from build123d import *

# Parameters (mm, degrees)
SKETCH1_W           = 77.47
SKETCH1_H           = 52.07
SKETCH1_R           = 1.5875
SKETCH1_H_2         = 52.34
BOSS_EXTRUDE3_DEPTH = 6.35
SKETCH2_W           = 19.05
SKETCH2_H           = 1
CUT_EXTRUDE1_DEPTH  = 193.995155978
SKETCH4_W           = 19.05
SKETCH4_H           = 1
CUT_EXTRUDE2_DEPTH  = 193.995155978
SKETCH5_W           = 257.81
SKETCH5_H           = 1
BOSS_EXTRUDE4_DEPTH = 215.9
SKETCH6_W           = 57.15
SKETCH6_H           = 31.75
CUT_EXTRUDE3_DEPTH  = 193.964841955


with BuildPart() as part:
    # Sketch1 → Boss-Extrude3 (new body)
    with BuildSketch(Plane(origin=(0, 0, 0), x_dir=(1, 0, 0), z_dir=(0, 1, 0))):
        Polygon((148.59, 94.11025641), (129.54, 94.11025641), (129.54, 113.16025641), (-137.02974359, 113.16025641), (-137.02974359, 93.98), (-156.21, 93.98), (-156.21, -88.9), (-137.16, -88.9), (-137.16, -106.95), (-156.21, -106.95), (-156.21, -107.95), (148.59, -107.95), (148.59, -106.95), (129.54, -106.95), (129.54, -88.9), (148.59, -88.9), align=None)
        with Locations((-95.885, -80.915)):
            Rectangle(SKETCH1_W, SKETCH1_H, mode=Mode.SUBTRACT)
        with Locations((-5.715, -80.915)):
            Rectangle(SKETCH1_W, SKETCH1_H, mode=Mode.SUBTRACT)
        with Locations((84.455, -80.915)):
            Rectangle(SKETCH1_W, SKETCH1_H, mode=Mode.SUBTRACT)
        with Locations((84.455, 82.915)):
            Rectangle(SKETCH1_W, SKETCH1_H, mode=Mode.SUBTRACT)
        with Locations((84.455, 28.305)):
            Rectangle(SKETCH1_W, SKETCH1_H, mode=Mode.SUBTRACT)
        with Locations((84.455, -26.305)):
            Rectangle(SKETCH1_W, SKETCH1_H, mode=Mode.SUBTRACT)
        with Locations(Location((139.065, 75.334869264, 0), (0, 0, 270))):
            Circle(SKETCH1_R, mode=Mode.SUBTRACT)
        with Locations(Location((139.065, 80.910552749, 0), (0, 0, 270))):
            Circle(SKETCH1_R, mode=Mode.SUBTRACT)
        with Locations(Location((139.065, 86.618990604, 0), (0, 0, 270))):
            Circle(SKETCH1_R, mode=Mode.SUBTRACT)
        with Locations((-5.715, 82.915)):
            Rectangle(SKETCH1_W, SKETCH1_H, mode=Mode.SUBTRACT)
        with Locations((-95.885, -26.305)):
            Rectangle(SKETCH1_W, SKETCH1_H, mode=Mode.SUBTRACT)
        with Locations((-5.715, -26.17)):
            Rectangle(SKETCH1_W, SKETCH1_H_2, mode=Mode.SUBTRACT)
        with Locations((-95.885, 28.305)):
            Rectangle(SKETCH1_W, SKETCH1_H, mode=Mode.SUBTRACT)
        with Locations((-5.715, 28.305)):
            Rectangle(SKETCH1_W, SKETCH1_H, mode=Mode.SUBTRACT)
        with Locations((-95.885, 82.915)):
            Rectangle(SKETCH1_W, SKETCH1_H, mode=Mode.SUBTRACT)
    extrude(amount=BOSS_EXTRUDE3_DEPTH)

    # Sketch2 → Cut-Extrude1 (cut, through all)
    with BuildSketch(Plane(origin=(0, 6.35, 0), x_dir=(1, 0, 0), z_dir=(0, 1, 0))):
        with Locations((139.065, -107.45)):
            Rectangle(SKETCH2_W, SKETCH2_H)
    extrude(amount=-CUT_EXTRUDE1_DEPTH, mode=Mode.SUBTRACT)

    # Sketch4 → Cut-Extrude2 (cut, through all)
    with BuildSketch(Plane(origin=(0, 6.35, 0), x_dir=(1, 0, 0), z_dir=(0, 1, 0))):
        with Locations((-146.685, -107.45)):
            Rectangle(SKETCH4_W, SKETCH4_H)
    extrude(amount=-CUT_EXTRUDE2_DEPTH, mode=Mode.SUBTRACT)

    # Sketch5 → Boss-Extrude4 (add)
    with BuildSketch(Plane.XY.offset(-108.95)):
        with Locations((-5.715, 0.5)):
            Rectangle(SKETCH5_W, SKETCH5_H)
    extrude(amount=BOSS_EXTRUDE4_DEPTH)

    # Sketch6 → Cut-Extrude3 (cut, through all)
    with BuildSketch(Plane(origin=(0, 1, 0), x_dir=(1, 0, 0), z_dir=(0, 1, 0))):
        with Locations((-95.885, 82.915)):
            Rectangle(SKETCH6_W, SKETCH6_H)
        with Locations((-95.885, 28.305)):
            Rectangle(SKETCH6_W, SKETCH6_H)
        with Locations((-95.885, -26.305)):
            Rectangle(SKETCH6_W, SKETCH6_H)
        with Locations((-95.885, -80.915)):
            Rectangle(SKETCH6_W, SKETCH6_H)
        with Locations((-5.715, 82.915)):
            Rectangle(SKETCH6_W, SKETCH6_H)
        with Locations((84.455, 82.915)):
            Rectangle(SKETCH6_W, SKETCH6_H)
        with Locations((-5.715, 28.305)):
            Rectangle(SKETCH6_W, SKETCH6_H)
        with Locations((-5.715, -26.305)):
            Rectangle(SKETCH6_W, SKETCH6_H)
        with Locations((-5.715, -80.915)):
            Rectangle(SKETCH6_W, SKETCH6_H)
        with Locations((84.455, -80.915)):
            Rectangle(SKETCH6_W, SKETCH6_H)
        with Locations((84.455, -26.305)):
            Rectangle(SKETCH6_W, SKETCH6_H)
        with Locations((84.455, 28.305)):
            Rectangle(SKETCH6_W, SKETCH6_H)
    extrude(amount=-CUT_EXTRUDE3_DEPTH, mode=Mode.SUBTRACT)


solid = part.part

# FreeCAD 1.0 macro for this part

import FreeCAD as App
import Part
import Sketcher
from FreeCAD import Vector
Q = App.Units.Quantity

doc = App.newDocument("Part")
body = doc.addObject("PartDesign::Body", "Body")

# Sketch on XZ plane
sketch1 = body.newObject("Sketcher::SketchObject", "Sketch")
sketch1.AttachmentSupport = (doc.getObject("XZ_Plane"), [""])
sketch1.MapMode = "FlatFace"
sketch1.addGeometry([
    Part.LineSegment(Vector(148.6, -94.1, 0), Vector(129.5, -94.1, 0)),  # 0
    Part.LineSegment(Vector(129.5, -94.1, 0), Vector(129.5, -113.2, 0)),  # 1
    Part.LineSegment(Vector(129.5, -113.2, 0), Vector(-137, -113.2, 0)),  # 2
    Part.LineSegment(Vector(-137, -113.2, 0), Vector(-137, -94, 0)),  # 3
    Part.LineSegment(Vector(-137, -94, 0), Vector(-156.2, -94, 0)),  # 4
    Part.LineSegment(Vector(-156.2, -94, 0), Vector(-156.2, 88.9, 0)),  # 5
    Part.LineSegment(Vector(-156.2, 88.9, 0), Vector(-137.2, 88.9, 0)),  # 6
    Part.LineSegment(Vector(-137.2, 88.9, 0), Vector(-137.2, 107, 0)),  # 7
    Part.LineSegment(Vector(-137.2, 107, 0), Vector(-156.2, 107, 0)),  # 8
    Part.LineSegment(Vector(-156.2, 107, 0), Vector(-156.2, 108, 0)),  # 9
    Part.LineSegment(Vector(-156.2, 108, 0), Vector(148.6, 108, 0)),  # 10
    Part.LineSegment(Vector(148.6, 108, 0), Vector(148.6, 107, 0)),  # 11
    Part.LineSegment(Vector(148.6, 107, 0), Vector(129.5, 107, 0)),  # 12
    Part.LineSegment(Vector(129.5, 107, 0), Vector(129.5, 88.9, 0)),  # 13
    Part.LineSegment(Vector(129.5, 88.9, 0), Vector(148.6, 88.9, 0)),  # 14
    Part.LineSegment(Vector(148.6, 88.9, 0), Vector(148.6, -94.1, 0)),  # 15
    Part.LineSegment(Vector(-57.1, 107, 0), Vector(-134.6, 107, 0)),  # 16
    Part.LineSegment(Vector(-134.6, 107, 0), Vector(-134.6, 54.9, 0)),  # 17
    Part.LineSegment(Vector(-134.6, 54.9, 0), Vector(-57.1, 54.9, 0)),  # 18
    Part.LineSegment(Vector(-57.1, 54.9, 0), Vector(-57.1, 107, 0)),  # 19
    Part.LineSegment(Vector(33, 107, 0), Vector(-44.5, 107, 0)),  # 20
    Part.LineSegment(Vector(-44.5, 107, 0), Vector(-44.5, 54.9, 0)),  # 21
    Part.LineSegment(Vector(-44.5, 54.9, 0), Vector(33, 54.9, 0)),  # 22
    Part.LineSegment(Vector(33, 54.9, 0), Vector(33, 107, 0)),  # 23
    Part.LineSegment(Vector(-57.1, 52.3, 0), Vector(-134.6, 52.3, 0)),  # 24
    Part.LineSegment(Vector(-134.6, 52.3, 0), Vector(-134.6, 0.3, 0)),  # 25
    Part.LineSegment(Vector(-134.6, 0.3, 0), Vector(-57.1, 0.3, 0)),  # 26
    Part.LineSegment(Vector(-57.1, 0.3, 0), Vector(-57.1, 52.3, 0)),  # 27
    Part.LineSegment(Vector(33, 52.3, 0), Vector(-44.5, 52.3, 0)),  # 28
    Part.LineSegment(Vector(-44.5, 52.3, 0), Vector(-44.5, 0, 0)),  # 29
    Part.LineSegment(Vector(-44.5, 0, 0), Vector(33, 0, 0)),  # 30
    Part.LineSegment(Vector(33, 0, 0), Vector(33, 52.3, 0)),  # 31
    Part.LineSegment(Vector(123.2, 107, 0), Vector(45.7, 107, 0)),  # 32
    Part.LineSegment(Vector(45.7, 107, 0), Vector(45.7, 54.9, 0)),  # 33
    Part.LineSegment(Vector(45.7, 54.9, 0), Vector(123.2, 54.9, 0)),  # 34
    Part.LineSegment(Vector(123.2, 54.9, 0), Vector(123.2, 107, 0)),  # 35
    Part.LineSegment(Vector(123.2, 52.3, 0), Vector(45.7, 52.3, 0)),  # 36
    Part.LineSegment(Vector(45.7, 52.3, 0), Vector(45.7, 0.3, 0)),  # 37
    Part.LineSegment(Vector(45.7, 0.3, 0), Vector(123.2, 0.3, 0)),  # 38
    Part.LineSegment(Vector(123.2, 0.3, 0), Vector(123.2, 52.3, 0)),  # 39
    Part.LineSegment(Vector(-57.1, -2.3, 0), Vector(-134.6, -2.3, 0)),  # 40
    Part.LineSegment(Vector(-134.6, -2.3, 0), Vector(-134.6, -54.3, 0)),  # 41
    Part.LineSegment(Vector(-134.6, -54.3, 0), Vector(-57.1, -54.3, 0)),  # 42
    Part.LineSegment(Vector(-57.1, -54.3, 0), Vector(-57.1, -2.3, 0)),  # 43
    Part.LineSegment(Vector(33, -2.3, 0), Vector(-44.5, -2.3, 0)),  # 44
    Part.LineSegment(Vector(-44.5, -2.3, 0), Vector(-44.5, -54.3, 0)),  # 45
    Part.LineSegment(Vector(-44.5, -54.3, 0), Vector(33, -54.3, 0)),  # 46
    Part.LineSegment(Vector(33, -54.3, 0), Vector(33, -2.3, 0)),  # 47
    Part.LineSegment(Vector(-57.1, -56.9, 0), Vector(-134.6, -56.9, 0)),  # 48
    Part.LineSegment(Vector(-134.6, -56.9, 0), Vector(-134.6, -109, 0)),  # 49
    Part.LineSegment(Vector(-134.6, -109, 0), Vector(-57.1, -109, 0)),  # 50
    Part.LineSegment(Vector(-57.1, -109, 0), Vector(-57.1, -56.9, 0)),  # 51
    Part.LineSegment(Vector(33, -56.9, 0), Vector(-44.5, -56.9, 0)),  # 52
    Part.LineSegment(Vector(-44.5, -56.9, 0), Vector(-44.5, -109, 0)),  # 53
    Part.LineSegment(Vector(-44.5, -109, 0), Vector(33, -109, 0)),  # 54
    Part.LineSegment(Vector(33, -109, 0), Vector(33, -56.9, 0)),  # 55
    Part.LineSegment(Vector(123.2, -2.3, 0), Vector(45.7, -2.3, 0)),  # 56
    Part.LineSegment(Vector(45.7, -2.3, 0), Vector(45.7, -54.3, 0)),  # 57
    Part.LineSegment(Vector(45.7, -54.3, 0), Vector(123.2, -54.3, 0)),  # 58
    Part.LineSegment(Vector(123.2, -54.3, 0), Vector(123.2, -2.3, 0)),  # 59
    Part.Circle(Vector(139.1, -75.3, 0), Vector(0, 0, 1), 1.6),  # 60
    Part.Circle(Vector(139.1, -80.9, 0), Vector(0, 0, 1), 1.6),  # 61
    Part.LineSegment(Vector(123.2, -56.9, 0), Vector(45.7, -56.9, 0)),  # 62
    Part.LineSegment(Vector(45.7, -56.9, 0), Vector(45.7, -109, 0)),  # 63
    Part.LineSegment(Vector(45.7, -109, 0), Vector(123.2, -109, 0)),  # 64
    Part.LineSegment(Vector(123.2, -109, 0), Vector(123.2, -56.9, 0)),  # 65
    Part.Circle(Vector(139.1, -86.6, 0), Vector(0, 0, 1), 1.6),  # 66
], False)
sketch1.addConstraint([
    Sketcher.Constraint("Coincident", 0, 2, 1, 1),
    Sketcher.Constraint("Coincident", 1, 2, 2, 1),
    Sketcher.Constraint("Coincident", 2, 2, 3, 1),
    Sketcher.Constraint("Coincident", 3, 2, 4, 1),
    Sketcher.Constraint("Coincident", 4, 2, 5, 1),
    Sketcher.Constraint("Coincident", 5, 2, 6, 1),
    Sketcher.Constraint("Coincident", 6, 2, 7, 1),
    Sketcher.Constraint("Coincident", 7, 2, 8, 1),
    Sketcher.Constraint("Coincident", 8, 2, 9, 1),
    Sketcher.Constraint("Coincident", 9, 2, 10, 1),
    Sketcher.Constraint("Coincident", 10, 2, 11, 1),
    Sketcher.Constraint("Coincident", 11, 2, 12, 1),
    Sketcher.Constraint("Coincident", 12, 2, 13, 1),
    Sketcher.Constraint("Coincident", 13, 2, 14, 1),
    Sketcher.Constraint("Coincident", 14, 2, 15, 1),
    Sketcher.Constraint("Coincident", 15, 2, 0, 1),
    Sketcher.Constraint("Coincident", 16, 2, 17, 1),
    Sketcher.Constraint("Coincident", 17, 2, 18, 1),
    Sketcher.Constraint("Coincident", 18, 2, 19, 1),
    Sketcher.Constraint("Coincident", 19, 2, 16, 1),
    Sketcher.Constraint("Coincident", 20, 2, 21, 1),
    Sketcher.Constraint("Coincident", 21, 2, 22, 1),
    Sketcher.Constraint("Coincident", 22, 2, 23, 1),
    Sketcher.Constraint("Coincident", 23, 2, 20, 1),
    Sketcher.Constraint("Coincident", 24, 2, 25, 1),
    Sketcher.Constraint("Coincident", 25, 2, 26, 1),
    Sketcher.Constraint("Coincident", 26, 2, 27, 1),
    Sketcher.Constraint("Coincident", 27, 2, 24, 1),
    Sketcher.Constraint("Coincident", 28, 2, 29, 1),
    Sketcher.Constraint("Coincident", 29, 2, 30, 1),
    Sketcher.Constraint("Coincident", 30, 2, 31, 1),
    Sketcher.Constraint("Coincident", 31, 2, 28, 1),
    Sketcher.Constraint("Coincident", 32, 2, 33, 1),
    Sketcher.Constraint("Coincident", 33, 2, 34, 1),
    Sketcher.Constraint("Coincident", 34, 2, 35, 1),
    Sketcher.Constraint("Coincident", 35, 2, 32, 1),
    Sketcher.Constraint("Coincident", 36, 2, 37, 1),
    Sketcher.Constraint("Coincident", 37, 2, 38, 1),
    Sketcher.Constraint("Coincident", 38, 2, 39, 1),
    Sketcher.Constraint("Coincident", 39, 2, 36, 1),
    Sketcher.Constraint("Coincident", 40, 2, 41, 1),
    Sketcher.Constraint("Coincident", 41, 2, 42, 1),
    Sketcher.Constraint("Coincident", 42, 2, 43, 1),
    Sketcher.Constraint("Coincident", 43, 2, 40, 1),
    Sketcher.Constraint("Coincident", 44, 2, 45, 1),
    Sketcher.Constraint("Coincident", 45, 2, 46, 1),
    Sketcher.Constraint("Coincident", 46, 2, 47, 1),
    Sketcher.Constraint("Coincident", 47, 2, 44, 1),
    Sketcher.Constraint("Coincident", 48, 2, 49, 1),
    Sketcher.Constraint("Coincident", 49, 2, 50, 1),
    Sketcher.Constraint("Coincident", 50, 2, 51, 1),
    Sketcher.Constraint("Coincident", 51, 2, 48, 1),
    Sketcher.Constraint("Coincident", 52, 2, 53, 1),
    Sketcher.Constraint("Coincident", 53, 2, 54, 1),
    Sketcher.Constraint("Coincident", 54, 2, 55, 1),
    Sketcher.Constraint("Coincident", 55, 2, 52, 1),
    Sketcher.Constraint("Coincident", 56, 2, 57, 1),
    Sketcher.Constraint("Coincident", 57, 2, 58, 1),
    Sketcher.Constraint("Coincident", 58, 2, 59, 1),
    Sketcher.Constraint("Coincident", 59, 2, 56, 1),
    Sketcher.Constraint("Coincident", 62, 2, 63, 1),
    Sketcher.Constraint("Coincident", 63, 2, 64, 1),
    Sketcher.Constraint("Coincident", 64, 2, 65, 1),
    Sketcher.Constraint("Coincident", 65, 2, 62, 1),
    Sketcher.Constraint("Horizontal", 0),
    Sketcher.Constraint("Vertical", 1),
    Sketcher.Constraint("Horizontal", 2),
    Sketcher.Constraint("Vertical", 3),
    Sketcher.Constraint("Horizontal", 4),
    Sketcher.Constraint("Vertical", 5),
    Sketcher.Constraint("Horizontal", 6),
    Sketcher.Constraint("Vertical", 7),
    Sketcher.Constraint("Horizontal", 8),
    Sketcher.Constraint("Vertical", 9),
    Sketcher.Constraint("Horizontal", 10),
    Sketcher.Constraint("Vertical", 11),
    Sketcher.Constraint("Horizontal", 12),
    Sketcher.Constraint("Vertical", 13),
    Sketcher.Constraint("Horizontal", 14),
    Sketcher.Constraint("Vertical", 15),
    Sketcher.Constraint("Horizontal", 16),
    Sketcher.Constraint("Vertical", 17),
    Sketcher.Constraint("Horizontal", 18),
    Sketcher.Constraint("Vertical", 19),
    Sketcher.Constraint("Horizontal", 20),
    Sketcher.Constraint("Vertical", 21),
    Sketcher.Constraint("Horizontal", 22),
    Sketcher.Constraint("Vertical", 23),
    Sketcher.Constraint("Horizontal", 24),
    Sketcher.Constraint("Vertical", 25),
    Sketcher.Constraint("Horizontal", 26),
    Sketcher.Constraint("Vertical", 27),
    Sketcher.Constraint("Horizontal", 28),
    Sketcher.Constraint("Vertical", 29),
    Sketcher.Constraint("Horizontal", 30),
    Sketcher.Constraint("Vertical", 31),
    Sketcher.Constraint("Horizontal", 32),
    Sketcher.Constraint("Vertical", 33),
    Sketcher.Constraint("Horizontal", 34),
    Sketcher.Constraint("Vertical", 35),
    Sketcher.Constraint("Horizontal", 36),
    Sketcher.Constraint("Vertical", 37),
    Sketcher.Constraint("Horizontal", 38),
    Sketcher.Constraint("Vertical", 39),
    Sketcher.Constraint("Horizontal", 40),
    Sketcher.Constraint("Vertical", 41),
    Sketcher.Constraint("Horizontal", 42),
    Sketcher.Constraint("Vertical", 43),
    Sketcher.Constraint("Horizontal", 44),
    Sketcher.Constraint("Vertical", 45),
    Sketcher.Constraint("Horizontal", 46),
    Sketcher.Constraint("Vertical", 47),
    Sketcher.Constraint("Horizontal", 48),
    Sketcher.Constraint("Vertical", 49),
    Sketcher.Constraint("Horizontal", 50),
    Sketcher.Constraint("Vertical", 51),
    Sketcher.Constraint("Horizontal", 52),
    Sketcher.Constraint("Vertical", 53),
    Sketcher.Constraint("Horizontal", 54),
    Sketcher.Constraint("Vertical", 55),
    Sketcher.Constraint("Horizontal", 56),
    Sketcher.Constraint("Vertical", 57),
    Sketcher.Constraint("Horizontal", 58),
    Sketcher.Constraint("Vertical", 59),
    Sketcher.Constraint("Horizontal", 62),
    Sketcher.Constraint("Vertical", 63),
    Sketcher.Constraint("Horizontal", 64),
    Sketcher.Constraint("Vertical", 65),
    Sketcher.Constraint("Equal", 60, 61),
    Sketcher.Constraint("Equal", 61, 66),
    Sketcher.Constraint("PointOnObject", 29, 2, -1),
    Sketcher.Constraint("Horizontal", 8, 2, 11, 2),
    Sketcher.Constraint("Horizontal", 6, 2, 13, 2),
    Sketcher.Constraint("Horizontal", 12, 2, 16, 2),
    Sketcher.Constraint("Horizontal", 19, 2, 20, 2),
    Sketcher.Constraint("Horizontal", 18, 2, 21, 2),
    Sketcher.Constraint("Horizontal", 27, 2, 28, 2),
    Sketcher.Constraint("Horizontal", 23, 2, 32, 2),
    Sketcher.Constraint("Horizontal", 22, 2, 33, 2),
    Sketcher.Constraint("Horizontal", 31, 2, 36, 2),
    Sketcher.Constraint("Horizontal", 26, 2, 37, 2),
    Sketcher.Constraint("Horizontal", 43, 2, 44, 2),
    Sketcher.Constraint("Horizontal", 42, 2, 45, 2),
    Sketcher.Constraint("Horizontal", 51, 2, 52, 2),
    Sketcher.Constraint("Horizontal", 50, 2, 53, 2),
    Sketcher.Constraint("Horizontal", 47, 2, 56, 2),
    Sketcher.Constraint("Horizontal", 46, 2, 57, 2),
    Sketcher.Constraint("Horizontal", 55, 2, 62, 2),
    Sketcher.Constraint("Horizontal", 54, 2, 63, 2),
    Sketcher.Constraint("Vertical", 60, 3, 61, 3),
    Sketcher.Constraint("Vertical", 61, 3, 66, 3),
    Sketcher.Constraint("Vertical", 5, 2, 8, 2),
    Sketcher.Constraint("Vertical", 1, 2, 12, 2),
    Sketcher.Constraint("Vertical", 11, 2, 14, 2),
    Sketcher.Constraint("Vertical", 17, 2, 24, 2),
    Sketcher.Constraint("Vertical", 19, 2, 26, 2),
    Sketcher.Constraint("Vertical", 21, 2, 28, 2),
    Sketcher.Constraint("Vertical", 23, 2, 30, 2),
    Sketcher.Constraint("Vertical", 33, 2, 36, 2),
    Sketcher.Constraint("Vertical", 35, 2, 38, 2),
    Sketcher.Constraint("Vertical", 25, 2, 40, 2),
    Sketcher.Constraint("Vertical", 27, 2, 42, 2),
    Sketcher.Constraint("Vertical", 29, 2, 44, 2),
    Sketcher.Constraint("Vertical", 31, 2, 46, 2),
    Sketcher.Constraint("Vertical", 41, 2, 48, 2),
    Sketcher.Constraint("Vertical", 43, 2, 50, 2),
    Sketcher.Constraint("Vertical", 45, 2, 52, 2),
    Sketcher.Constraint("Vertical", 47, 2, 54, 2),
    Sketcher.Constraint("Vertical", 37, 2, 56, 2),
    Sketcher.Constraint("Vertical", 39, 2, 58, 2),
    Sketcher.Constraint("Vertical", 57, 2, 62, 2),
    Sketcher.Constraint("Vertical", 59, 2, 64, 2),
    Sketcher.Constraint("Equal", 0, 6),
    Sketcher.Constraint("Equal", 18, 20),
    Sketcher.Constraint("Equal", 30, 32),
    Sketcher.Constraint("Equal", 14, 1),
    Sketcher.Constraint("Equal", 4, 3),
    Sketcher.Constraint("Equal", 23, 25),
    Sketcher.Constraint("Equal", 39, 41),
    Sketcher.Constraint("Equal", 47, 49),
    Sketcher.Constraint("DistanceX", 10, 1, 10, 2, Q("12 in")),
    Sketcher.Constraint("Diameter", 60, Q("0.125 in")),
    Sketcher.Constraint("DistanceY", 5, 1, 5, 2, Q("7.2 in")),
    Sketcher.Constraint("DistanceX", 0, 2, 0, 1, Q("0.75 in")),
    Sketcher.Constraint("DistanceX", 16, 2, 16, 1, Q("3.05 in")),
    Sketcher.Constraint("DistanceY", 17, 2, 17, 1, Q("2.05 in")),
    Sketcher.Constraint("DistanceX", -1, 1, 0, 2, Q("5.1 in")),
    Sketcher.Constraint("DistanceY", 3, 2, -1, 1, Q("3.7 in")),
    Sketcher.Constraint("DistanceX", 16, 2, -1, 1, Q("5.3 in")),
    Sketcher.Constraint("DistanceX", -1, 1, 22, 2, Q("1.3 in")),
    Sketcher.Constraint("DistanceX", -1, 1, 32, 2, Q("1.8 in")),
    Sketcher.Constraint("DistanceY", -1, 1, 9, 2, Q("4.25 in")),
    Sketcher.Constraint("DistanceX", -1, 1, 60, 3, Q("5.475 in")),
    Sketcher.Constraint("DistanceY", 7, 1, 7, 2, 18.05),
    Sketcher.Constraint("DistanceY", 29, 2, 29, 1, 52.34),
    Sketcher.Constraint("DistanceY", 40, 2, -1, 1, 2.27),
    Sketcher.Constraint("DistanceY", 48, 2, -1, 1, 56.88),
    Sketcher.Constraint("DistanceX", 2, 2, 2, 1, 266.569744),
    Sketcher.Constraint("DistanceY", 60, 3, -1, 1, 75.334869),
    Sketcher.Constraint("DistanceY", 66, 3, -1, 1, 86.618991),
    Sketcher.Constraint("DistanceY", 61, 3, -1, 1, 80.910553),
])
pad1 = body.newObject("PartDesign::Pad", "Pad")
pad1.Profile = sketch1
pad1.Length = Q("0.25 in")
pad1.Reversed = True

# Sketch on XZ plane
sketch2 = body.newObject("Sketcher::SketchObject", "Sketch001")
sketch2.AttachmentSupport = (doc.getObject("XZ_Plane"), [""])
sketch2.MapMode = "FlatFace"
sketch2.AttachmentOffset = App.Placement(Vector(0, 0, -0.25 * 25.4), App.Rotation())
sketch2.addGeometry([
    Part.LineSegment(Vector(129.5, 107, 0), Vector(129.5, 108, 0)),
    Part.LineSegment(Vector(129.5, 108, 0), Vector(148.6, 108, 0)),
    Part.LineSegment(Vector(148.6, 108, 0), Vector(148.6, 107, 0)),
    Part.LineSegment(Vector(148.6, 107, 0), Vector(129.5, 107, 0)),
], False)
sketch2.addConstraint([
    Sketcher.Constraint("Coincident", 0, 2, 1, 1),
    Sketcher.Constraint("Coincident", 1, 2, 2, 1),
    Sketcher.Constraint("Coincident", 2, 2, 3, 1),
    Sketcher.Constraint("Coincident", 3, 2, 0, 1),
    Sketcher.Constraint("Vertical", 0),
    Sketcher.Constraint("Horizontal", 1),
    Sketcher.Constraint("Vertical", 2),
    Sketcher.Constraint("Horizontal", 3),
    Sketcher.Constraint("DistanceX", 1, 1, 1, 2, Q("0.75 in")),
    Sketcher.Constraint("DistanceX", -1, 1, 0, 2, Q("5.1 in")),
    Sketcher.Constraint("DistanceY", -1, 1, 0, 2, Q("4.25 in")),
    Sketcher.Constraint("DistanceY", 0, 1, 0, 2, 1.0),
])
pocket1 = body.newObject("PartDesign::Pocket", "Pocket")
pocket1.Profile = sketch2
pocket1.Type = "ThroughAll"
pocket1.Reversed = True

# Sketch on XZ plane
sketch3 = body.newObject("Sketcher::SketchObject", "Sketch002")
sketch3.AttachmentSupport = (doc.getObject("XZ_Plane"), [""])
sketch3.MapMode = "FlatFace"
sketch3.AttachmentOffset = App.Placement(Vector(0, 0, -0.25 * 25.4), App.Rotation())
sketch3.addGeometry([
    Part.LineSegment(Vector(-156.2, 107, 0), Vector(-156.2, 108, 0)),
    Part.LineSegment(Vector(-156.2, 108, 0), Vector(-137.2, 108, 0)),
    Part.LineSegment(Vector(-137.2, 108, 0), Vector(-137.2, 107, 0)),
    Part.LineSegment(Vector(-137.2, 107, 0), Vector(-156.2, 107, 0)),
], False)
sketch3.addConstraint([
    Sketcher.Constraint("Coincident", 0, 2, 1, 1),
    Sketcher.Constraint("Coincident", 1, 2, 2, 1),
    Sketcher.Constraint("Coincident", 2, 2, 3, 1),
    Sketcher.Constraint("Coincident", 3, 2, 0, 1),
    Sketcher.Constraint("Vertical", 0),
    Sketcher.Constraint("Horizontal", 1),
    Sketcher.Constraint("Vertical", 2),
    Sketcher.Constraint("Horizontal", 3),
    Sketcher.Constraint("DistanceX", 1, 1, 1, 2, Q("0.75 in")),
    Sketcher.Constraint("DistanceX", 1, 2, -1, 1, Q("5.4 in")),
    Sketcher.Constraint("DistanceY", -1, 1, 0, 2, Q("4.25 in")),
    Sketcher.Constraint("DistanceY", 0, 1, 0, 2, 1.0),
])
pocket2 = body.newObject("PartDesign::Pocket", "Pocket001")
pocket2.Profile = sketch3
pocket2.Type = "ThroughAll"
pocket2.Reversed = True

# Sketch on XY plane
sketch4 = body.newObject("Sketcher::SketchObject", "Sketch003")
sketch4.AttachmentSupport = (doc.getObject("XY_Plane"), [""])
sketch4.MapMode = "FlatFace"
sketch4.AttachmentOffset = App.Placement(Vector(0, 0, -108.95), App.Rotation())
sketch4.addGeometry([
    Part.LineSegment(Vector(-134.6, 1, 0), Vector(-134.6, 0, 0)),
    Part.LineSegment(Vector(-134.6, 0, 0), Vector(123.2, 0, 0)),
    Part.LineSegment(Vector(123.2, 0, 0), Vector(123.2, 1, 0)),
    Part.LineSegment(Vector(123.2, 1, 0), Vector(-134.6, 1, 0)),
], False)
sketch4.addConstraint([
    Sketcher.Constraint("Coincident", 0, 2, 1, 1),
    Sketcher.Constraint("Coincident", 1, 2, 2, 1),
    Sketcher.Constraint("Coincident", 2, 2, 3, 1),
    Sketcher.Constraint("Coincident", 3, 2, 0, 1),
    Sketcher.Constraint("Vertical", 0),
    Sketcher.Constraint("Horizontal", 1),
    Sketcher.Constraint("Vertical", 2),
    Sketcher.Constraint("Horizontal", 3),
    Sketcher.Constraint("PointOnObject", 0, 2, -1),
    Sketcher.Constraint("DistanceX", 1, 1, 1, 2, Q("10.15 in")),
    Sketcher.Constraint("DistanceX", 0, 2, -1, 1, Q("5.3 in")),
    Sketcher.Constraint("DistanceY", 0, 2, 0, 1, 1.0),
])
pad2 = body.newObject("PartDesign::Pad", "Pad001")
pad2.Profile = sketch4
pad2.Length = Q("8.5 in")

# Sketch on XZ plane
sketch5 = body.newObject("Sketcher::SketchObject", "Sketch004")
sketch5.AttachmentSupport = (doc.getObject("XZ_Plane"), [""])
sketch5.MapMode = "FlatFace"
sketch5.AttachmentOffset = App.Placement(Vector(0, 0, -1), App.Rotation())
sketch5.addGeometry([
    Part.LineSegment(Vector(-124, -99, 0), Vector(-124, -67, 0)),  # 0
    Part.LineSegment(Vector(-124, -67, 0), Vector(-67, -67, 0)),  # 1
    Part.LineSegment(Vector(-67, -67, 0), Vector(-67, -99, 0)),  # 2
    Part.LineSegment(Vector(-67, -99, 0), Vector(-124, -99, 0)),  # 3
    Part.LineSegment(Vector(-124, -44, 0), Vector(-124, -12, 0)),  # 4
    Part.LineSegment(Vector(-124, -12, 0), Vector(-67, -12, 0)),  # 5
    Part.LineSegment(Vector(-67, -12, 0), Vector(-67, -44, 0)),  # 6
    Part.LineSegment(Vector(-67, -44, 0), Vector(-124, -44, 0)),  # 7
    Part.LineSegment(Vector(-124, 10, 0), Vector(-124, 42, 0)),  # 8
    Part.LineSegment(Vector(-124, 42, 0), Vector(-67, 42, 0)),  # 9
    Part.LineSegment(Vector(-67, 42, 0), Vector(-67, 10, 0)),  # 10
    Part.LineSegment(Vector(-67, 10, 0), Vector(-124, 10, 0)),  # 11
    Part.LineSegment(Vector(-124, 65, 0), Vector(-124, 97, 0)),  # 12
    Part.LineSegment(Vector(-124, 97, 0), Vector(-67, 97, 0)),  # 13
    Part.LineSegment(Vector(-67, 97, 0), Vector(-67, 65, 0)),  # 14
    Part.LineSegment(Vector(-67, 65, 0), Vector(-124, 65, 0)),  # 15
    Part.LineSegment(Vector(-34, -99, 0), Vector(-34, -67, 0)),  # 16
    Part.LineSegment(Vector(-34, -67, 0), Vector(23, -67, 0)),  # 17
    Part.LineSegment(Vector(23, -67, 0), Vector(23, -99, 0)),  # 18
    Part.LineSegment(Vector(23, -99, 0), Vector(-34, -99, 0)),  # 19
    Part.LineSegment(Vector(56, -99, 0), Vector(56, -67, 0)),  # 20
    Part.LineSegment(Vector(56, -67, 0), Vector(113, -67, 0)),  # 21
    Part.LineSegment(Vector(113, -67, 0), Vector(113, -99, 0)),  # 22
    Part.LineSegment(Vector(113, -99, 0), Vector(56, -99, 0)),  # 23
    Part.LineSegment(Vector(-34, -44, 0), Vector(-34, -12, 0)),  # 24
    Part.LineSegment(Vector(-34, -12, 0), Vector(23, -12, 0)),  # 25
    Part.LineSegment(Vector(23, -12, 0), Vector(23, -44, 0)),  # 26
    Part.LineSegment(Vector(23, -44, 0), Vector(-34, -44, 0)),  # 27
    Part.LineSegment(Vector(-34, 10, 0), Vector(-34, 42, 0)),  # 28
    Part.LineSegment(Vector(-34, 42, 0), Vector(23, 42, 0)),  # 29
    Part.LineSegment(Vector(23, 42, 0), Vector(23, 10, 0)),  # 30
    Part.LineSegment(Vector(23, 10, 0), Vector(-34, 10, 0)),  # 31
    Part.LineSegment(Vector(-34, 65, 0), Vector(-34, 97, 0)),  # 32
    Part.LineSegment(Vector(-34, 97, 0), Vector(23, 97, 0)),  # 33
    Part.LineSegment(Vector(23, 97, 0), Vector(23, 65, 0)),  # 34
    Part.LineSegment(Vector(23, 65, 0), Vector(-34, 65, 0)),  # 35
    Part.LineSegment(Vector(56, 65, 0), Vector(56, 97, 0)),  # 36
    Part.LineSegment(Vector(56, 97, 0), Vector(113, 97, 0)),  # 37
    Part.LineSegment(Vector(113, 97, 0), Vector(113, 65, 0)),  # 38
    Part.LineSegment(Vector(113, 65, 0), Vector(56, 65, 0)),  # 39
    Part.LineSegment(Vector(56, 10, 0), Vector(56, 42, 0)),  # 40
    Part.LineSegment(Vector(56, 42, 0), Vector(113, 42, 0)),  # 41
    Part.LineSegment(Vector(113, 42, 0), Vector(113, 10, 0)),  # 42
    Part.LineSegment(Vector(113, 10, 0), Vector(56, 10, 0)),  # 43
    Part.LineSegment(Vector(56, -44, 0), Vector(56, -12, 0)),  # 44
    Part.LineSegment(Vector(56, -12, 0), Vector(113, -12, 0)),  # 45
    Part.LineSegment(Vector(113, -12, 0), Vector(113, -44, 0)),  # 46
    Part.LineSegment(Vector(113, -44, 0), Vector(56, -44, 0)),  # 47
], False)
sketch5.addConstraint([
    Sketcher.Constraint("Coincident", 0, 2, 1, 1),
    Sketcher.Constraint("Coincident", 1, 2, 2, 1),
    Sketcher.Constraint("Coincident", 2, 2, 3, 1),
    Sketcher.Constraint("Coincident", 3, 2, 0, 1),
    Sketcher.Constraint("Coincident", 4, 2, 5, 1),
    Sketcher.Constraint("Coincident", 5, 2, 6, 1),
    Sketcher.Constraint("Coincident", 6, 2, 7, 1),
    Sketcher.Constraint("Coincident", 7, 2, 4, 1),
    Sketcher.Constraint("Coincident", 8, 2, 9, 1),
    Sketcher.Constraint("Coincident", 9, 2, 10, 1),
    Sketcher.Constraint("Coincident", 10, 2, 11, 1),
    Sketcher.Constraint("Coincident", 11, 2, 8, 1),
    Sketcher.Constraint("Coincident", 12, 2, 13, 1),
    Sketcher.Constraint("Coincident", 13, 2, 14, 1),
    Sketcher.Constraint("Coincident", 14, 2, 15, 1),
    Sketcher.Constraint("Coincident", 15, 2, 12, 1),
    Sketcher.Constraint("Coincident", 16, 2, 17, 1),
    Sketcher.Constraint("Coincident", 17, 2, 18, 1),
    Sketcher.Constraint("Coincident", 18, 2, 19, 1),
    Sketcher.Constraint("Coincident", 19, 2, 16, 1),
    Sketcher.Constraint("Coincident", 20, 2, 21, 1),
    Sketcher.Constraint("Coincident", 21, 2, 22, 1),
    Sketcher.Constraint("Coincident", 22, 2, 23, 1),
    Sketcher.Constraint("Coincident", 23, 2, 20, 1),
    Sketcher.Constraint("Coincident", 24, 2, 25, 1),
    Sketcher.Constraint("Coincident", 25, 2, 26, 1),
    Sketcher.Constraint("Coincident", 26, 2, 27, 1),
    Sketcher.Constraint("Coincident", 27, 2, 24, 1),
    Sketcher.Constraint("Coincident", 28, 2, 29, 1),
    Sketcher.Constraint("Coincident", 29, 2, 30, 1),
    Sketcher.Constraint("Coincident", 30, 2, 31, 1),
    Sketcher.Constraint("Coincident", 31, 2, 28, 1),
    Sketcher.Constraint("Coincident", 32, 2, 33, 1),
    Sketcher.Constraint("Coincident", 33, 2, 34, 1),
    Sketcher.Constraint("Coincident", 34, 2, 35, 1),
    Sketcher.Constraint("Coincident", 35, 2, 32, 1),
    Sketcher.Constraint("Coincident", 36, 2, 37, 1),
    Sketcher.Constraint("Coincident", 37, 2, 38, 1),
    Sketcher.Constraint("Coincident", 38, 2, 39, 1),
    Sketcher.Constraint("Coincident", 39, 2, 36, 1),
    Sketcher.Constraint("Coincident", 40, 2, 41, 1),
    Sketcher.Constraint("Coincident", 41, 2, 42, 1),
    Sketcher.Constraint("Coincident", 42, 2, 43, 1),
    Sketcher.Constraint("Coincident", 43, 2, 40, 1),
    Sketcher.Constraint("Coincident", 44, 2, 45, 1),
    Sketcher.Constraint("Coincident", 45, 2, 46, 1),
    Sketcher.Constraint("Coincident", 46, 2, 47, 1),
    Sketcher.Constraint("Coincident", 47, 2, 44, 1),
    Sketcher.Constraint("Vertical", 0),
    Sketcher.Constraint("Horizontal", 1),
    Sketcher.Constraint("Vertical", 2),
    Sketcher.Constraint("Horizontal", 3),
    Sketcher.Constraint("Vertical", 4),
    Sketcher.Constraint("Horizontal", 5),
    Sketcher.Constraint("Vertical", 6),
    Sketcher.Constraint("Horizontal", 7),
    Sketcher.Constraint("Vertical", 8),
    Sketcher.Constraint("Horizontal", 9),
    Sketcher.Constraint("Vertical", 10),
    Sketcher.Constraint("Horizontal", 11),
    Sketcher.Constraint("Vertical", 12),
    Sketcher.Constraint("Horizontal", 13),
    Sketcher.Constraint("Vertical", 14),
    Sketcher.Constraint("Horizontal", 15),
    Sketcher.Constraint("Vertical", 16),
    Sketcher.Constraint("Horizontal", 17),
    Sketcher.Constraint("Vertical", 18),
    Sketcher.Constraint("Horizontal", 19),
    Sketcher.Constraint("Vertical", 20),
    Sketcher.Constraint("Horizontal", 21),
    Sketcher.Constraint("Vertical", 22),
    Sketcher.Constraint("Horizontal", 23),
    Sketcher.Constraint("Vertical", 24),
    Sketcher.Constraint("Horizontal", 25),
    Sketcher.Constraint("Vertical", 26),
    Sketcher.Constraint("Horizontal", 27),
    Sketcher.Constraint("Vertical", 28),
    Sketcher.Constraint("Horizontal", 29),
    Sketcher.Constraint("Vertical", 30),
    Sketcher.Constraint("Horizontal", 31),
    Sketcher.Constraint("Vertical", 32),
    Sketcher.Constraint("Horizontal", 33),
    Sketcher.Constraint("Vertical", 34),
    Sketcher.Constraint("Horizontal", 35),
    Sketcher.Constraint("Vertical", 36),
    Sketcher.Constraint("Horizontal", 37),
    Sketcher.Constraint("Vertical", 38),
    Sketcher.Constraint("Horizontal", 39),
    Sketcher.Constraint("Vertical", 40),
    Sketcher.Constraint("Horizontal", 41),
    Sketcher.Constraint("Vertical", 42),
    Sketcher.Constraint("Horizontal", 43),
    Sketcher.Constraint("Vertical", 44),
    Sketcher.Constraint("Horizontal", 45),
    Sketcher.Constraint("Vertical", 46),
    Sketcher.Constraint("Horizontal", 47),
    Sketcher.Constraint("Horizontal", 1, 2, 16, 2),
    Sketcher.Constraint("Horizontal", 3, 2, 18, 2),
    Sketcher.Constraint("Horizontal", 17, 2, 20, 2),
    Sketcher.Constraint("Horizontal", 19, 2, 22, 2),
    Sketcher.Constraint("Horizontal", 5, 2, 24, 2),
    Sketcher.Constraint("Horizontal", 7, 2, 26, 2),
    Sketcher.Constraint("Horizontal", 9, 2, 28, 2),
    Sketcher.Constraint("Horizontal", 11, 2, 30, 2),
    Sketcher.Constraint("Horizontal", 13, 2, 32, 2),
    Sketcher.Constraint("Horizontal", 15, 2, 34, 2),
    Sketcher.Constraint("Horizontal", 33, 2, 36, 2),
    Sketcher.Constraint("Horizontal", 35, 2, 38, 2),
    Sketcher.Constraint("Horizontal", 29, 2, 40, 2),
    Sketcher.Constraint("Horizontal", 31, 2, 42, 2),
    Sketcher.Constraint("Horizontal", 25, 2, 44, 2),
    Sketcher.Constraint("Horizontal", 27, 2, 46, 2),
    Sketcher.Constraint("Vertical", 3, 2, 4, 2),
    Sketcher.Constraint("Vertical", 2, 2, 5, 2),
    Sketcher.Constraint("Vertical", 7, 2, 8, 2),
    Sketcher.Constraint("Vertical", 6, 2, 9, 2),
    Sketcher.Constraint("Vertical", 11, 2, 12, 2),
    Sketcher.Constraint("Vertical", 10, 2, 13, 2),
    Sketcher.Constraint("Vertical", 19, 2, 24, 2),
    Sketcher.Constraint("Vertical", 18, 2, 25, 2),
    Sketcher.Constraint("Vertical", 27, 2, 28, 2),
    Sketcher.Constraint("Vertical", 26, 2, 29, 2),
    Sketcher.Constraint("Vertical", 31, 2, 32, 2),
    Sketcher.Constraint("Vertical", 30, 2, 33, 2),
    Sketcher.Constraint("Vertical", 23, 2, 36, 2),
    Sketcher.Constraint("Vertical", 22, 2, 37, 2),
    Sketcher.Constraint("Vertical", 39, 2, 40, 2),
    Sketcher.Constraint("Vertical", 38, 2, 41, 2),
    Sketcher.Constraint("Vertical", 43, 2, 44, 2),
    Sketcher.Constraint("Vertical", 42, 2, 45, 2),
    Sketcher.Constraint("Equal", 15, 17),
    Sketcher.Constraint("Equal", 19, 21),
    Sketcher.Constraint("Equal", 2, 4),
    Sketcher.Constraint("Equal", 6, 8),
    Sketcher.Constraint("Equal", 10, 12),
    Sketcher.Constraint("DistanceX", 1, 1, 1, 2, Q("2.25 in")),
    Sketcher.Constraint("DistanceY", 0, 1, 0, 2, Q("1.25 in")),
    Sketcher.Constraint("DistanceX", 0, 2, -1, 1, Q("4.9 in")),
    Sketcher.Constraint("DistanceX", -1, 1, 17, 2, Q("0.9 in")),
    Sketcher.Constraint("DistanceX", -1, 1, 20, 2, Q("2.2 in")),
    Sketcher.Constraint("DistanceY", 3, 2, 4, 2, Q("3.4 in")),
    Sketcher.Constraint("DistanceY", 7, 2, 8, 2, Q("3.4 in")),
    Sketcher.Constraint("DistanceY", 11, 2, 12, 2, Q("3.4 in")),
    Sketcher.Constraint("DistanceY", 0, 2, -1, 1, 67.04),
])
pocket3 = body.newObject("PartDesign::Pocket", "Pocket002")
pocket3.Profile = sketch5
pocket3.Type = "ThroughAll"
pocket3.Reversed = True

doc.recompute()
